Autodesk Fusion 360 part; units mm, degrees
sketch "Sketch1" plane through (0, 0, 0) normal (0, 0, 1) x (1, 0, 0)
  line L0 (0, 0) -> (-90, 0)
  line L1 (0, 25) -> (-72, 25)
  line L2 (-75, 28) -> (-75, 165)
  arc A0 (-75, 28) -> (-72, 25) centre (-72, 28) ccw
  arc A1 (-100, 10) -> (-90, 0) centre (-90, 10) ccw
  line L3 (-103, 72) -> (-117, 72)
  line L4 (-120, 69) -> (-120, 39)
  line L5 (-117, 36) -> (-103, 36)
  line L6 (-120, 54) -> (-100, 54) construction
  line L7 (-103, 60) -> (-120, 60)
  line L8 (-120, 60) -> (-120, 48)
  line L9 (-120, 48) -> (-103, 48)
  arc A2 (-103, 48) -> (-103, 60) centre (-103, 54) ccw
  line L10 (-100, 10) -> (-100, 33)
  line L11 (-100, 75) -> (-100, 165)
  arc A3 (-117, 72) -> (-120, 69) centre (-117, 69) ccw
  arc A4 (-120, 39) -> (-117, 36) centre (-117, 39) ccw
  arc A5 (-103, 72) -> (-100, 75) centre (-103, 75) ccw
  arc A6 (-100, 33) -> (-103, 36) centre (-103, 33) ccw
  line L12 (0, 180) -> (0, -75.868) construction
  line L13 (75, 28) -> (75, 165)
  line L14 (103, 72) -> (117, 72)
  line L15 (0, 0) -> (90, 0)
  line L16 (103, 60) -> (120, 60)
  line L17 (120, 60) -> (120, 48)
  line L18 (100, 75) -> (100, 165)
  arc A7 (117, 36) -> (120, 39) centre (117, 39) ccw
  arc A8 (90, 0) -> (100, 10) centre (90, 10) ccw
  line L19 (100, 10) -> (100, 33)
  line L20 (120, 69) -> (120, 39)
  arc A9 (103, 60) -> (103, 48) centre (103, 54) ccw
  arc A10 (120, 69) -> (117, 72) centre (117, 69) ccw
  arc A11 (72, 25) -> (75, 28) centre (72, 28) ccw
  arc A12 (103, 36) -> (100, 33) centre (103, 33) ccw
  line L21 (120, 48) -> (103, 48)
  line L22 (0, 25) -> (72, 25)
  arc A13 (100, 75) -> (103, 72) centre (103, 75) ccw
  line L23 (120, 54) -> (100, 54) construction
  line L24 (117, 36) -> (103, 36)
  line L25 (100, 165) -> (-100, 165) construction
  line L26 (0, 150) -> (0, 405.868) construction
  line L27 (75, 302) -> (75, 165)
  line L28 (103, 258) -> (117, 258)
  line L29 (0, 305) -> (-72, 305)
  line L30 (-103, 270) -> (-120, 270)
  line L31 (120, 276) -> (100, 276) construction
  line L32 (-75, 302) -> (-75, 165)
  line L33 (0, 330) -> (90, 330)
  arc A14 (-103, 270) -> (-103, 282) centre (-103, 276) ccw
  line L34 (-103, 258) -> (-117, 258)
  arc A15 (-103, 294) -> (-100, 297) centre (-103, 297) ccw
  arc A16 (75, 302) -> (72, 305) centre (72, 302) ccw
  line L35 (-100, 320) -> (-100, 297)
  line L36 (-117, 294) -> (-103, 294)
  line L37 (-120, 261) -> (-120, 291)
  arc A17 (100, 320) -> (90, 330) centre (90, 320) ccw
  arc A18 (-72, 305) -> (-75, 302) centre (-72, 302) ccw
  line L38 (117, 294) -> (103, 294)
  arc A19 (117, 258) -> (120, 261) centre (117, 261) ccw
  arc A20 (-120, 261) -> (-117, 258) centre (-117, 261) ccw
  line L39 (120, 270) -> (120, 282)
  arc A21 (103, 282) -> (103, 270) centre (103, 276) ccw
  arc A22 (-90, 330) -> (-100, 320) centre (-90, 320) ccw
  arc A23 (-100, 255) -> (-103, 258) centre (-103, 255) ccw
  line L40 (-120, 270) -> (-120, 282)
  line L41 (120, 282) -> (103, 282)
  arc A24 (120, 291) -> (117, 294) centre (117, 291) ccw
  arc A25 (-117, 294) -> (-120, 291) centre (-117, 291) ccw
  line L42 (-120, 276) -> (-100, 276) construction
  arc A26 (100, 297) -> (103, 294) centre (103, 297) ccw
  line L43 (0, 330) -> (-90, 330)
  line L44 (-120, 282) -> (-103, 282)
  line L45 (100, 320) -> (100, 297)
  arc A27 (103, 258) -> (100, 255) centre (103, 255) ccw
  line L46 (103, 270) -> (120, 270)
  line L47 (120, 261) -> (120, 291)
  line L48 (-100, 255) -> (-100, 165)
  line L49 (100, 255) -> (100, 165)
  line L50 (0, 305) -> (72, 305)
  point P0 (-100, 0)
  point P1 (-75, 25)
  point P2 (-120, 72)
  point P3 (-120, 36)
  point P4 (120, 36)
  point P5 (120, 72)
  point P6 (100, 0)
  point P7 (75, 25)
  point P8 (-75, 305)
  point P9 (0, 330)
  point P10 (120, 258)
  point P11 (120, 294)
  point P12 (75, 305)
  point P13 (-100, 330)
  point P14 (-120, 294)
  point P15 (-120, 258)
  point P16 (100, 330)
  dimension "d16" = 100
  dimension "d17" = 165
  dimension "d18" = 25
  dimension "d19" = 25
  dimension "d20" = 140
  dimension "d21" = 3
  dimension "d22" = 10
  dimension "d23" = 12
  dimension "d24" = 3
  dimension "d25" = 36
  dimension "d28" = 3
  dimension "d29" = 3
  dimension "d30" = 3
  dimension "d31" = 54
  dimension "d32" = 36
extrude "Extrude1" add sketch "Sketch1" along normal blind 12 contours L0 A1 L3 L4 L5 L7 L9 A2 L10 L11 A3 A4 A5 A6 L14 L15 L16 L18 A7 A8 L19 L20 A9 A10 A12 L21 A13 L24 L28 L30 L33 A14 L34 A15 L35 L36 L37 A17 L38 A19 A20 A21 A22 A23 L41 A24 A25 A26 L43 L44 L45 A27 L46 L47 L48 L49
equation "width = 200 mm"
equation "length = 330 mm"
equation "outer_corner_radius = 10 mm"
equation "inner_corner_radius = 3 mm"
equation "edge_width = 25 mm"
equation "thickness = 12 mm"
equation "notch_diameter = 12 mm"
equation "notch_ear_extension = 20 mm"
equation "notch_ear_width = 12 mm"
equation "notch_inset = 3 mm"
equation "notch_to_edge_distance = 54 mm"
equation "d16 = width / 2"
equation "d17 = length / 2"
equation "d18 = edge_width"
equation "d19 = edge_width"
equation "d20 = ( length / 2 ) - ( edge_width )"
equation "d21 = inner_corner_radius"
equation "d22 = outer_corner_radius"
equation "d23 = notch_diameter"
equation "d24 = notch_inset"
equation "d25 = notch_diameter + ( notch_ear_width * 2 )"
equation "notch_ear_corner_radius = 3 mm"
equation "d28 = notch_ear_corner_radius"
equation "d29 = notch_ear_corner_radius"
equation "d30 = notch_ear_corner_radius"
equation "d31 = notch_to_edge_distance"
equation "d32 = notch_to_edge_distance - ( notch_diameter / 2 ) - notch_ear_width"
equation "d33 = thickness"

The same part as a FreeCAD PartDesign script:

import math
import FreeCAD as App
import Part
import Sketcher
Q = App.Units.Quantity

doc = App.newDocument("Part")
body = doc.addObject("PartDesign::Body", "Body")

sketch1 = doc.addObject("Sketcher::SketchObject", "Sketch")
body.addObject(sketch1)
sketch1.AttachmentSupport = (doc.XY_Plane, [""])
sketch1.MapMode = "FlatFace"
sketch1.addGeometry(Part.LineSegment(App.Vector(-90, 0, 0), App.Vector(90, 0, 0)), False)
sketch1.addGeometry(Part.ArcOfCircle(Part.Circle(App.Vector(90, 10, 0), App.Vector(0, 0, 1), 10), math.radians(-90), math.radians(0)), False)
sketch1.addGeometry(Part.LineSegment(App.Vector(100, 10, 0), App.Vector(100, 33, 0)), False)
sketch1.addGeometry(Part.ArcOfCircle(Part.Circle(App.Vector(103, 33, 0), App.Vector(0, 0, 1), 3), math.radians(90), math.radians(180)), False)
sketch1.addGeometry(Part.LineSegment(App.Vector(103, 36, 0), App.Vector(117, 36, 0)), False)
sketch1.addGeometry(Part.ArcOfCircle(Part.Circle(App.Vector(117, 39, 0), App.Vector(0, 0, 1), 3), math.radians(-90), math.radians(0)), False)
sketch1.addGeometry(Part.LineSegment(App.Vector(120, 39, 0), App.Vector(120, 48, 0)), False)
sketch1.addGeometry(Part.LineSegment(App.Vector(120, 48, 0), App.Vector(103, 48, 0)), False)
sketch1.addGeometry(Part.ArcOfCircle(Part.Circle(App.Vector(103, 54, 0), App.Vector(0, 0, 1), 6), math.radians(90), math.radians(270)), False)
sketch1.addGeometry(Part.LineSegment(App.Vector(103, 60, 0), App.Vector(120, 60, 0)), False)
sketch1.addGeometry(Part.LineSegment(App.Vector(120, 60, 0), App.Vector(120, 69, 0)), False)
sketch1.addGeometry(Part.ArcOfCircle(Part.Circle(App.Vector(117, 69, 0), App.Vector(0, 0, 1), 3), math.radians(0), math.radians(90)), False)
sketch1.addGeometry(Part.LineSegment(App.Vector(117, 72, 0), App.Vector(103, 72, 0)), False)
sketch1.addGeometry(Part.ArcOfCircle(Part.Circle(App.Vector(103, 75, 0), App.Vector(0, 0, 1), 3), math.radians(180), math.radians(270)), False)
sketch1.addGeometry(Part.LineSegment(App.Vector(100, 75, 0), App.Vector(100, 255, 0)), False)
sketch1.addGeometry(Part.ArcOfCircle(Part.Circle(App.Vector(103, 255, 0), App.Vector(0, 0, 1), 3), math.radians(90), math.radians(180)), False)
sketch1.addGeometry(Part.LineSegment(App.Vector(103, 258, 0), App.Vector(117, 258, 0)), False)
sketch1.addGeometry(Part.ArcOfCircle(Part.Circle(App.Vector(117, 261, 0), App.Vector(0, 0, 1), 3), math.radians(-90), math.radians(0)), False)
sketch1.addGeometry(Part.LineSegment(App.Vector(120, 261, 0), App.Vector(120, 270, 0)), False)
sketch1.addGeometry(Part.LineSegment(App.Vector(120, 270, 0), App.Vector(103, 270, 0)), False)
sketch1.addGeometry(Part.ArcOfCircle(Part.Circle(App.Vector(103, 276, 0), App.Vector(0, 0, 1), 6), math.radians(90), math.radians(270)), False)
sketch1.addGeometry(Part.LineSegment(App.Vector(103, 282, 0), App.Vector(120, 282, 0)), False)
sketch1.addGeometry(Part.LineSegment(App.Vector(120, 282, 0), App.Vector(120, 291, 0)), False)
sketch1.addGeometry(Part.ArcOfCircle(Part.Circle(App.Vector(117, 291, 0), App.Vector(0, 0, 1), 3), math.radians(0), math.radians(90)), False)
sketch1.addGeometry(Part.LineSegment(App.Vector(117, 294, 0), App.Vector(103, 294, 0)), False)
sketch1.addGeometry(Part.ArcOfCircle(Part.Circle(App.Vector(103, 297, 0), App.Vector(0, 0, 1), 3), math.radians(180), math.radians(270)), False)
sketch1.addGeometry(Part.LineSegment(App.Vector(100, 297, 0), App.Vector(100, 320, 0)), False)
sketch1.addGeometry(Part.ArcOfCircle(Part.Circle(App.Vector(90, 320, 0), App.Vector(0, 0, 1), 10), math.radians(0), math.radians(90)), False)
sketch1.addGeometry(Part.LineSegment(App.Vector(90, 330, 0), App.Vector(-90, 330, 0)), False)
sketch1.addGeometry(Part.ArcOfCircle(Part.Circle(App.Vector(-90, 320, 0), App.Vector(0, 0, 1), 10), math.radians(90), math.radians(180)), False)
sketch1.addGeometry(Part.LineSegment(App.Vector(-100, 320, 0), App.Vector(-100, 297, 0)), False)
sketch1.addGeometry(Part.ArcOfCircle(Part.Circle(App.Vector(-103, 297, 0), App.Vector(0, 0, 1), 3), math.radians(-90), math.radians(0)), False)
sketch1.addGeometry(Part.LineSegment(App.Vector(-103, 294, 0), App.Vector(-117, 294, 0)), False)
sketch1.addGeometry(Part.ArcOfCircle(Part.Circle(App.Vector(-117, 291, 0), App.Vector(0, 0, 1), 3), math.radians(90), math.radians(180)), False)
sketch1.addGeometry(Part.LineSegment(App.Vector(-120, 291, 0), App.Vector(-120, 282, 0)), False)
sketch1.addGeometry(Part.LineSegment(App.Vector(-120, 282, 0), App.Vector(-103, 282, 0)), False)
sketch1.addGeometry(Part.ArcOfCircle(Part.Circle(App.Vector(-103, 276, 0), App.Vector(0, 0, 1), 6), math.radians(-90), math.radians(90)), False)
sketch1.addGeometry(Part.LineSegment(App.Vector(-103, 270, 0), App.Vector(-120, 270, 0)), False)
sketch1.addGeometry(Part.LineSegment(App.Vector(-120, 270, 0), App.Vector(-120, 261, 0)), False)
sketch1.addGeometry(Part.ArcOfCircle(Part.Circle(App.Vector(-117, 261, 0), App.Vector(0, 0, 1), 3), math.radians(180), math.radians(270)), False)
sketch1.addGeometry(Part.LineSegment(App.Vector(-117, 258, 0), App.Vector(-103, 258, 0)), False)
sketch1.addGeometry(Part.ArcOfCircle(Part.Circle(App.Vector(-103, 255, 0), App.Vector(0, 0, 1), 3), math.radians(0), math.radians(90)), False)
sketch1.addGeometry(Part.LineSegment(App.Vector(-100, 255, 0), App.Vector(-100, 75, 0)), False)
sketch1.addGeometry(Part.ArcOfCircle(Part.Circle(App.Vector(-103, 75, 0), App.Vector(0, 0, 1), 3), math.radians(-90), math.radians(0)), False)
sketch1.addGeometry(Part.LineSegment(App.Vector(-103, 72, 0), App.Vector(-117, 72, 0)), False)
sketch1.addGeometry(Part.ArcOfCircle(Part.Circle(App.Vector(-117, 69, 0), App.Vector(0, 0, 1), 3), math.radians(90), math.radians(180)), False)
sketch1.addGeometry(Part.LineSegment(App.Vector(-120, 69, 0), App.Vector(-120, 60, 0)), False)
sketch1.addGeometry(Part.LineSegment(App.Vector(-120, 60, 0), App.Vector(-103, 60, 0)), False)
sketch1.addGeometry(Part.ArcOfCircle(Part.Circle(App.Vector(-103, 54, 0), App.Vector(0, 0, 1), 6), math.radians(-90), math.radians(90)), False)
sketch1.addGeometry(Part.LineSegment(App.Vector(-103, 48, 0), App.Vector(-120, 48, 0)), False)
sketch1.addGeometry(Part.LineSegment(App.Vector(-120, 48, 0), App.Vector(-120, 39, 0)), False)
sketch1.addGeometry(Part.ArcOfCircle(Part.Circle(App.Vector(-117, 39, 0), App.Vector(0, 0, 1), 3), math.radians(180), math.radians(270)), False)
sketch1.addGeometry(Part.LineSegment(App.Vector(-117, 36, 0), App.Vector(-103, 36, 0)), False)
sketch1.addGeometry(Part.ArcOfCircle(Part.Circle(App.Vector(-103, 33, 0), App.Vector(0, 0, 1), 3), math.radians(0), math.radians(90)), False)
sketch1.addGeometry(Part.LineSegment(App.Vector(-100, 33, 0), App.Vector(-100, 10, 0)), False)
sketch1.addGeometry(Part.ArcOfCircle(Part.Circle(App.Vector(-90, 10, 0), App.Vector(0, 0, 1), 10), math.radians(180), math.radians(270)), False)
sketch1.addGeometry(Part.LineSegment(App.Vector(72, 25, 0), App.Vector(-72, 25, 0)), False)
sketch1.addGeometry(Part.ArcOfCircle(Part.Circle(App.Vector(-72, 28, 0), App.Vector(0, 0, 1), 3), math.radians(180), math.radians(270)), False)
sketch1.addGeometry(Part.LineSegment(App.Vector(-75, 28, 0), App.Vector(-75, 302, 0)), False)
sketch1.addGeometry(Part.ArcOfCircle(Part.Circle(App.Vector(-72, 302, 0), App.Vector(0, 0, 1), 3), math.radians(90), math.radians(180)), False)
sketch1.addGeometry(Part.LineSegment(App.Vector(-72, 305, 0), App.Vector(72, 305, 0)), False)
sketch1.addGeometry(Part.ArcOfCircle(Part.Circle(App.Vector(72, 302, 0), App.Vector(0, 0, 1), 3), math.radians(0), math.radians(90)), False)
sketch1.addGeometry(Part.LineSegment(App.Vector(75, 302, 0), App.Vector(75, 28, 0)), False)
sketch1.addGeometry(Part.ArcOfCircle(Part.Circle(App.Vector(72, 28, 0), App.Vector(0, 0, 1), 3), math.radians(-90), math.radians(0)), False)
sketch1.addConstraint(Sketcher.Constraint("Tangent", 0, 2, 1, 1))
sketch1.addConstraint(Sketcher.Constraint("Tangent", 1, 2, 2, 1))
sketch1.addConstraint(Sketcher.Constraint("Tangent", 2, 2, 3, 2))
sketch1.addConstraint(Sketcher.Constraint("Tangent", 3, 1, 4, 1))
sketch1.addConstraint(Sketcher.Constraint("Tangent", 4, 2, 5, 1))
sketch1.addConstraint(Sketcher.Constraint("Tangent", 5, 2, 6, 1))
sketch1.addConstraint(Sketcher.Constraint("Coincident", 6, 2, 7, 1))
sketch1.addConstraint(Sketcher.Constraint("Tangent", 7, 2, 8, 2))
sketch1.addConstraint(Sketcher.Constraint("Tangent", 8, 1, 9, 1))
sketch1.addConstraint(Sketcher.Constraint("Coincident", 9, 2, 10, 1))
sketch1.addConstraint(Sketcher.Constraint("Tangent", 10, 2, 11, 1))
sketch1.addConstraint(Sketcher.Constraint("Tangent", 11, 2, 12, 1))
sketch1.addConstraint(Sketcher.Constraint("Tangent", 12, 2, 13, 2))
sketch1.addConstraint(Sketcher.Constraint("Tangent", 13, 1, 14, 1))
sketch1.addConstraint(Sketcher.Constraint("Tangent", 14, 2, 15, 2))
sketch1.addConstraint(Sketcher.Constraint("Tangent", 15, 1, 16, 1))
sketch1.addConstraint(Sketcher.Constraint("Tangent", 16, 2, 17, 1))
sketch1.addConstraint(Sketcher.Constraint("Tangent", 17, 2, 18, 1))
sketch1.addConstraint(Sketcher.Constraint("Coincident", 18, 2, 19, 1))
sketch1.addConstraint(Sketcher.Constraint("Tangent", 19, 2, 20, 2))
sketch1.addConstraint(Sketcher.Constraint("Tangent", 20, 1, 21, 1))
sketch1.addConstraint(Sketcher.Constraint("Coincident", 21, 2, 22, 1))
sketch1.addConstraint(Sketcher.Constraint("Tangent", 22, 2, 23, 1))
sketch1.addConstraint(Sketcher.Constraint("Tangent", 23, 2, 24, 1))
sketch1.addConstraint(Sketcher.Constraint("Tangent", 24, 2, 25, 2))
sketch1.addConstraint(Sketcher.Constraint("Tangent", 25, 1, 26, 1))
sketch1.addConstraint(Sketcher.Constraint("Tangent", 26, 2, 27, 1))
sketch1.addConstraint(Sketcher.Constraint("Tangent", 27, 2, 28, 1))
sketch1.addConstraint(Sketcher.Constraint("Tangent", 28, 2, 29, 1))
sketch1.addConstraint(Sketcher.Constraint("Tangent", 29, 2, 30, 1))
sketch1.addConstraint(Sketcher.Constraint("Tangent", 30, 2, 31, 2))
sketch1.addConstraint(Sketcher.Constraint("Tangent", 31, 1, 32, 1))
sketch1.addConstraint(Sketcher.Constraint("Tangent", 32, 2, 33, 1))
sketch1.addConstraint(Sketcher.Constraint("Tangent", 33, 2, 34, 1))
sketch1.addConstraint(Sketcher.Constraint("Coincident", 34, 2, 35, 1))
sketch1.addConstraint(Sketcher.Constraint("Tangent", 35, 2, 36, 2))
sketch1.addConstraint(Sketcher.Constraint("Tangent", 36, 1, 37, 1))
sketch1.addConstraint(Sketcher.Constraint("Coincident", 37, 2, 38, 1))
sketch1.addConstraint(Sketcher.Constraint("Tangent", 38, 2, 39, 1))
sketch1.addConstraint(Sketcher.Constraint("Tangent", 39, 2, 40, 1))
sketch1.addConstraint(Sketcher.Constraint("Tangent", 40, 2, 41, 2))
sketch1.addConstraint(Sketcher.Constraint("Tangent", 41, 1, 42, 1))
sketch1.addConstraint(Sketcher.Constraint("Tangent", 42, 2, 43, 2))
sketch1.addConstraint(Sketcher.Constraint("Tangent", 43, 1, 44, 1))
sketch1.addConstraint(Sketcher.Constraint("Tangent", 44, 2, 45, 1))
sketch1.addConstraint(Sketcher.Constraint("Tangent", 45, 2, 46, 1))
sketch1.addConstraint(Sketcher.Constraint("Coincident", 46, 2, 47, 1))
sketch1.addConstraint(Sketcher.Constraint("Tangent", 47, 2, 48, 2))
sketch1.addConstraint(Sketcher.Constraint("Tangent", 48, 1, 49, 1))
sketch1.addConstraint(Sketcher.Constraint("Coincident", 49, 2, 50, 1))
sketch1.addConstraint(Sketcher.Constraint("Tangent", 50, 2, 51, 1))
sketch1.addConstraint(Sketcher.Constraint("Tangent", 51, 2, 52, 1))
sketch1.addConstraint(Sketcher.Constraint("Tangent", 52, 2, 53, 2))
sketch1.addConstraint(Sketcher.Constraint("Tangent", 53, 1, 54, 1))
sketch1.addConstraint(Sketcher.Constraint("Tangent", 54, 2, 55, 1))
sketch1.addConstraint(Sketcher.Constraint("Tangent", 55, 2, 0, 1))
sketch1.addConstraint(Sketcher.Constraint("Tangent", 56, 2, 57, 2))
sketch1.addConstraint(Sketcher.Constraint("Tangent", 57, 1, 58, 1))
sketch1.addConstraint(Sketcher.Constraint("Tangent", 58, 2, 59, 2))
sketch1.addConstraint(Sketcher.Constraint("Tangent", 59, 1, 60, 1))
sketch1.addConstraint(Sketcher.Constraint("Tangent", 60, 2, 61, 2))
sketch1.addConstraint(Sketcher.Constraint("Tangent", 61, 1, 62, 1))
sketch1.addConstraint(Sketcher.Constraint("Tangent", 62, 2, 63, 2))
sketch1.addConstraint(Sketcher.Constraint("Tangent", 63, 1, 56, 1))
sketch1.addConstraint(Sketcher.Constraint("Horizontal", 0))
sketch1.addConstraint(Sketcher.Constraint("Vertical", 2))
sketch1.addConstraint(Sketcher.Constraint("Horizontal", 4))
sketch1.addConstraint(Sketcher.Constraint("Vertical", 6))
sketch1.addConstraint(Sketcher.Constraint("Horizontal", 7))
sketch1.addConstraint(Sketcher.Constraint("Horizontal", 9))
sketch1.addConstraint(Sketcher.Constraint("Vertical", 10))
sketch1.addConstraint(Sketcher.Constraint("Horizontal", 12))
sketch1.addConstraint(Sketcher.Constraint("Vertical", 14))
sketch1.addConstraint(Sketcher.Constraint("Horizontal", 16))
sketch1.addConstraint(Sketcher.Constraint("Vertical", 18))
sketch1.addConstraint(Sketcher.Constraint("Horizontal", 19))
sketch1.addConstraint(Sketcher.Constraint("Horizontal", 21))
sketch1.addConstraint(Sketcher.Constraint("Vertical", 22))
sketch1.addConstraint(Sketcher.Constraint("Horizontal", 24))
sketch1.addConstraint(Sketcher.Constraint("Vertical", 26))
sketch1.addConstraint(Sketcher.Constraint("Horizontal", 28))
sketch1.addConstraint(Sketcher.Constraint("Vertical", 30))
sketch1.addConstraint(Sketcher.Constraint("Horizontal", 32))
sketch1.addConstraint(Sketcher.Constraint("Vertical", 34))
sketch1.addConstraint(Sketcher.Constraint("Horizontal", 35))
sketch1.addConstraint(Sketcher.Constraint("Horizontal", 37))
sketch1.addConstraint(Sketcher.Constraint("Vertical", 38))
sketch1.addConstraint(Sketcher.Constraint("Horizontal", 40))
sketch1.addConstraint(Sketcher.Constraint("Vertical", 42))
sketch1.addConstraint(Sketcher.Constraint("Horizontal", 44))
sketch1.addConstraint(Sketcher.Constraint("Vertical", 46))
sketch1.addConstraint(Sketcher.Constraint("Horizontal", 47))
sketch1.addConstraint(Sketcher.Constraint("Horizontal", 49))
sketch1.addConstraint(Sketcher.Constraint("Vertical", 50))
sketch1.addConstraint(Sketcher.Constraint("Horizontal", 52))
sketch1.addConstraint(Sketcher.Constraint("Vertical", 54))
sketch1.addConstraint(Sketcher.Constraint("Horizontal", 56))
sketch1.addConstraint(Sketcher.Constraint("Vertical", 58))
sketch1.addConstraint(Sketcher.Constraint("Horizontal", 60))
sketch1.addConstraint(Sketcher.Constraint("Vertical", 62))
sketch1.addConstraint(Sketcher.Constraint("Equal", 3, 5))
sketch1.addConstraint(Sketcher.Constraint("Equal", 5, 11))
sketch1.addConstraint(Sketcher.Constraint("Equal", 11, 13))
sketch1.addConstraint(Sketcher.Constraint("Equal", 13, 15))
sketch1.addConstraint(Sketcher.Constraint("Equal", 15, 17))
sketch1.addConstraint(Sketcher.Constraint("Equal", 8, 20))
sketch1.addConstraint(Sketcher.Constraint("Equal", 17, 23))
sketch1.addConstraint(Sketcher.Constraint("Equal", 23, 25))
sketch1.addConstraint(Sketcher.Constraint("Equal", 1, 27))
sketch1.addConstraint(Sketcher.Constraint("Equal", 27, 29))
sketch1.addConstraint(Sketcher.Constraint("Equal", 25, 31))
sketch1.addConstraint(Sketcher.Constraint("Equal", 31, 33))
sketch1.addConstraint(Sketcher.Constraint("Equal", 20, 36))
sketch1.addConstraint(Sketcher.Constraint("Equal", 33, 39))
sketch1.addConstraint(Sketcher.Constraint("Equal", 39, 41))
sketch1.addConstraint(Sketcher.Constraint("Equal", 41, 43))
sketch1.addConstraint(Sketcher.Constraint("Equal", 43, 45))
sketch1.addConstraint(Sketcher.Constraint("Equal", 36, 48))
sketch1.addConstraint(Sketcher.Constraint("Equal", 45, 51))
sketch1.addConstraint(Sketcher.Constraint("Equal", 51, 53))
sketch1.addConstraint(Sketcher.Constraint("Equal", 29, 55))
sketch1.addConstraint(Sketcher.Constraint("Equal", 53, 57))
sketch1.addConstraint(Sketcher.Constraint("Equal", 57, 59))
sketch1.addConstraint(Sketcher.Constraint("Equal", 59, 61))
sketch1.addConstraint(Sketcher.Constraint("Equal", 61, 63))
sketch1.addConstraint(Sketcher.Constraint("Symmetric", 0, 2, 55, 2, -1, 1))
sketch1.addConstraint(Sketcher.Constraint("Symmetric", 25, 3, 31, 3, -2))
sketch1.addConstraint(Sketcher.Constraint("Symmetric", 20, 3, 36, 3, -2))
sketch1.addConstraint(Sketcher.Constraint("Symmetric", 17, 3, 39, 3, -2))
sketch1.addConstraint(Sketcher.Constraint("Symmetric", 13, 3, 43, 3, -2))
sketch1.addConstraint(Sketcher.Constraint("Symmetric", 8, 3, 48, 3, -2))
sketch1.addConstraint(Sketcher.Constraint("Symmetric", 5, 3, 51, 3, -2))
sketch1.addConstraint(Sketcher.Constraint("Vertical", 3, 3, 8, 3))
sketch1.addConstraint(Sketcher.Constraint("Vertical", 5, 3, 11, 3))
sketch1.addConstraint(Sketcher.Constraint("Vertical", 8, 3, 13, 3))
sketch1.addConstraint(Sketcher.Constraint("Vertical", 11, 3, 17, 3))
sketch1.addConstraint(Sketcher.Constraint("Vertical", 15, 3, 20, 3))
sketch1.addConstraint(Sketcher.Constraint("Vertical", 17, 3, 23, 3))
sketch1.addConstraint(Sketcher.Constraint("Vertical", 20, 3, 25, 3))
sketch1.addConstraint(Sketcher.Constraint("Vertical", 33, 3, 39, 3))
sketch1.addConstraint(Sketcher.Constraint("Vertical", 39, 3, 45, 3))
sketch1.addConstraint(Sketcher.Constraint("Equal", 6, 10))
sketch1.addConstraint(Sketcher.Constraint("Equal", 28, 14))
sketch1.addConstraint(Sketcher.Constraint("Equal", 10, 18))
sketch1.addConstraint(Sketcher.Constraint("Equal", 18, 22))
sketch1.addConstraint(Sketcher.Constraint("Equal", 2, 26))
sketch1.addConstraint(Sketcher.Constraint("Radius", 1, Q("10 mm")))
sketch1.addConstraint(Sketcher.Constraint("Radius", 3, Q("3 mm")))
sketch1.addConstraint(Sketcher.Constraint("Radius", 8, Q("6 mm")))
sketch1.addConstraint(Sketcher.Constraint("DistanceY", -1, 1, 8, 3, Q("54 mm")))
sketch1.addConstraint(Sketcher.Constraint("DistanceX", -1, 1, 1, 2, Q("100 mm")))
sketch1.addConstraint(Sketcher.Constraint("DistanceY", -1, 1, 3, 1, Q("36 mm")))
sketch1.addConstraint(Sketcher.Constraint("DistanceY", -1, 1, 56, 2, Q("25 mm")))
sketch1.addConstraint(Sketcher.Constraint("DistanceX", 4, 1, 4, 2, Q("14 mm")))
sketch1.addConstraint(Sketcher.Constraint("DistanceX", 56, 2, 56, 1, Q("144 mm")))
sketch1.addConstraint(Sketcher.Constraint("DistanceY", 58, 1, 58, 2, Q("274 mm")))
sketch1.addConstraint(Sketcher.Constraint("DistanceX", 57, 3, -1, 1, Q("72 mm")))
pad1 = doc.addObject("PartDesign::Pad", "Pad")
body.addObject(pad1)
pad1.Profile = sketch1
pad1.Length = 12

doc.recompute()
